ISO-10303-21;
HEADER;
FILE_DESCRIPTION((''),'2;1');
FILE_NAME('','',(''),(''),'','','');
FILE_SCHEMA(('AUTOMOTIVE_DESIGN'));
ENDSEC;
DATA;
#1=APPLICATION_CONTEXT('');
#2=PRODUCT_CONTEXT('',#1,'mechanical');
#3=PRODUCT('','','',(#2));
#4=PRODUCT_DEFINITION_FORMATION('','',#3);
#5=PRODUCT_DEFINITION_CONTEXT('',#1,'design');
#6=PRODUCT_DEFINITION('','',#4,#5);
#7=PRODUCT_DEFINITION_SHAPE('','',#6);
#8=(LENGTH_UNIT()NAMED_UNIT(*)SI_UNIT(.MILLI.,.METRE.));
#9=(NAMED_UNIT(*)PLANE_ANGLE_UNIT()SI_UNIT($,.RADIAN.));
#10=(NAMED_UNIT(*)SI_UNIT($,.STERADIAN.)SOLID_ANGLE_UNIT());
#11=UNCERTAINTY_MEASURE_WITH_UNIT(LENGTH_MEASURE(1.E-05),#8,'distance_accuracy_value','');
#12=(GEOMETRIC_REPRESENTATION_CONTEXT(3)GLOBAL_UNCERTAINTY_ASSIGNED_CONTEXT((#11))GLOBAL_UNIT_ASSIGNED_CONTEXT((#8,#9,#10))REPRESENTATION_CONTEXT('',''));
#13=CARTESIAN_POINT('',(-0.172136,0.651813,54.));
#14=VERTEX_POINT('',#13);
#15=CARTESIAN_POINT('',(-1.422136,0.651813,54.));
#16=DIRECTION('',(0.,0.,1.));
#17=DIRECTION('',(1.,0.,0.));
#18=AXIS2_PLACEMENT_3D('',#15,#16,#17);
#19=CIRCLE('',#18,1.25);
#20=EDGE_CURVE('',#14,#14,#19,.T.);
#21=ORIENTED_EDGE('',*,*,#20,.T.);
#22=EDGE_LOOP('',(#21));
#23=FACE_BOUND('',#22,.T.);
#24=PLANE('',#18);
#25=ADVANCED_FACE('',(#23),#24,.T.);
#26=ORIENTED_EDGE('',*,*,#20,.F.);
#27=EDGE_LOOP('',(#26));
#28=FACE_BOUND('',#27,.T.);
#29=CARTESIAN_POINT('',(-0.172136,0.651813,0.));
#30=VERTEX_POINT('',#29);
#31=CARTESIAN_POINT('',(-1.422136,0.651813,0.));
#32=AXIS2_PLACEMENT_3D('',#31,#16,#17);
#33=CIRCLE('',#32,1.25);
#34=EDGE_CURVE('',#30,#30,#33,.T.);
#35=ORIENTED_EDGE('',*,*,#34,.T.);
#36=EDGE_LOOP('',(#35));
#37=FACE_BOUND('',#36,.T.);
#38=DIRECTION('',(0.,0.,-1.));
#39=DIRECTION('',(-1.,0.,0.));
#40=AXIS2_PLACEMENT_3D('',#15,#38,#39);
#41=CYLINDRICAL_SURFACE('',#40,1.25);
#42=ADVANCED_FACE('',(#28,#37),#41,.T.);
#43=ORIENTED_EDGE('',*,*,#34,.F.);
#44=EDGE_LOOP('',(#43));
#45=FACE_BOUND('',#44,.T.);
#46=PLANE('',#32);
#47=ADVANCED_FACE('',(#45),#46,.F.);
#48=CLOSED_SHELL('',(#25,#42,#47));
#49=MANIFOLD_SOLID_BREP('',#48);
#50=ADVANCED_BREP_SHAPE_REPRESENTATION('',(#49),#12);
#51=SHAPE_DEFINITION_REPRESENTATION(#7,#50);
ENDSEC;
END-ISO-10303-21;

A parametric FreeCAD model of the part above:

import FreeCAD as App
import Part
import Sketcher
Q = App.Units.Quantity

doc = App.newDocument("Part")
params = doc.addObject("Spreadsheet::Sheet", "Params")
for row, (alias, value) in enumerate([
    ("sketch1_diameter", "2.5 mm"),
    ("pad1_length", "54 mm"),
], start=1):
    params.set(f"A{row}", alias)
    params.set(f"B{row}", "=" + value)
    params.setAlias(f"B{row}", alias)

body = doc.addObject("PartDesign::Body", "Body")

# Sketch on XY plane
sketch1 = body.newObject("Sketcher::SketchObject", "Sketch")
sketch1.AttachmentSupport = (doc.getObject("XY_Plane"), [""])
sketch1.MapMode = "FlatFace"
sketch1.addGeometry(Part.Circle(App.Vector(-1.4, 0.7, 0), App.Vector(0, 0, 1), 1.2), False)
sketch1.addConstraint([
    Sketcher.Constraint("Diameter", 0, Q("2.5 mm")),
    Sketcher.Constraint("DistanceX", 0, 3, -1, 1, Q("1.422136 mm")),
    Sketcher.Constraint("DistanceY", -1, 1, 0, 3, Q("0.651813 mm")),
])
sketch1.setExpression("Constraints[0]", "Params.sketch1_diameter")
pad1 = body.newObject("PartDesign::Pad", "Pad")
pad1.Profile = sketch1
pad1.setExpression("Length", "Params.pad1_length")

doc.recompute()
